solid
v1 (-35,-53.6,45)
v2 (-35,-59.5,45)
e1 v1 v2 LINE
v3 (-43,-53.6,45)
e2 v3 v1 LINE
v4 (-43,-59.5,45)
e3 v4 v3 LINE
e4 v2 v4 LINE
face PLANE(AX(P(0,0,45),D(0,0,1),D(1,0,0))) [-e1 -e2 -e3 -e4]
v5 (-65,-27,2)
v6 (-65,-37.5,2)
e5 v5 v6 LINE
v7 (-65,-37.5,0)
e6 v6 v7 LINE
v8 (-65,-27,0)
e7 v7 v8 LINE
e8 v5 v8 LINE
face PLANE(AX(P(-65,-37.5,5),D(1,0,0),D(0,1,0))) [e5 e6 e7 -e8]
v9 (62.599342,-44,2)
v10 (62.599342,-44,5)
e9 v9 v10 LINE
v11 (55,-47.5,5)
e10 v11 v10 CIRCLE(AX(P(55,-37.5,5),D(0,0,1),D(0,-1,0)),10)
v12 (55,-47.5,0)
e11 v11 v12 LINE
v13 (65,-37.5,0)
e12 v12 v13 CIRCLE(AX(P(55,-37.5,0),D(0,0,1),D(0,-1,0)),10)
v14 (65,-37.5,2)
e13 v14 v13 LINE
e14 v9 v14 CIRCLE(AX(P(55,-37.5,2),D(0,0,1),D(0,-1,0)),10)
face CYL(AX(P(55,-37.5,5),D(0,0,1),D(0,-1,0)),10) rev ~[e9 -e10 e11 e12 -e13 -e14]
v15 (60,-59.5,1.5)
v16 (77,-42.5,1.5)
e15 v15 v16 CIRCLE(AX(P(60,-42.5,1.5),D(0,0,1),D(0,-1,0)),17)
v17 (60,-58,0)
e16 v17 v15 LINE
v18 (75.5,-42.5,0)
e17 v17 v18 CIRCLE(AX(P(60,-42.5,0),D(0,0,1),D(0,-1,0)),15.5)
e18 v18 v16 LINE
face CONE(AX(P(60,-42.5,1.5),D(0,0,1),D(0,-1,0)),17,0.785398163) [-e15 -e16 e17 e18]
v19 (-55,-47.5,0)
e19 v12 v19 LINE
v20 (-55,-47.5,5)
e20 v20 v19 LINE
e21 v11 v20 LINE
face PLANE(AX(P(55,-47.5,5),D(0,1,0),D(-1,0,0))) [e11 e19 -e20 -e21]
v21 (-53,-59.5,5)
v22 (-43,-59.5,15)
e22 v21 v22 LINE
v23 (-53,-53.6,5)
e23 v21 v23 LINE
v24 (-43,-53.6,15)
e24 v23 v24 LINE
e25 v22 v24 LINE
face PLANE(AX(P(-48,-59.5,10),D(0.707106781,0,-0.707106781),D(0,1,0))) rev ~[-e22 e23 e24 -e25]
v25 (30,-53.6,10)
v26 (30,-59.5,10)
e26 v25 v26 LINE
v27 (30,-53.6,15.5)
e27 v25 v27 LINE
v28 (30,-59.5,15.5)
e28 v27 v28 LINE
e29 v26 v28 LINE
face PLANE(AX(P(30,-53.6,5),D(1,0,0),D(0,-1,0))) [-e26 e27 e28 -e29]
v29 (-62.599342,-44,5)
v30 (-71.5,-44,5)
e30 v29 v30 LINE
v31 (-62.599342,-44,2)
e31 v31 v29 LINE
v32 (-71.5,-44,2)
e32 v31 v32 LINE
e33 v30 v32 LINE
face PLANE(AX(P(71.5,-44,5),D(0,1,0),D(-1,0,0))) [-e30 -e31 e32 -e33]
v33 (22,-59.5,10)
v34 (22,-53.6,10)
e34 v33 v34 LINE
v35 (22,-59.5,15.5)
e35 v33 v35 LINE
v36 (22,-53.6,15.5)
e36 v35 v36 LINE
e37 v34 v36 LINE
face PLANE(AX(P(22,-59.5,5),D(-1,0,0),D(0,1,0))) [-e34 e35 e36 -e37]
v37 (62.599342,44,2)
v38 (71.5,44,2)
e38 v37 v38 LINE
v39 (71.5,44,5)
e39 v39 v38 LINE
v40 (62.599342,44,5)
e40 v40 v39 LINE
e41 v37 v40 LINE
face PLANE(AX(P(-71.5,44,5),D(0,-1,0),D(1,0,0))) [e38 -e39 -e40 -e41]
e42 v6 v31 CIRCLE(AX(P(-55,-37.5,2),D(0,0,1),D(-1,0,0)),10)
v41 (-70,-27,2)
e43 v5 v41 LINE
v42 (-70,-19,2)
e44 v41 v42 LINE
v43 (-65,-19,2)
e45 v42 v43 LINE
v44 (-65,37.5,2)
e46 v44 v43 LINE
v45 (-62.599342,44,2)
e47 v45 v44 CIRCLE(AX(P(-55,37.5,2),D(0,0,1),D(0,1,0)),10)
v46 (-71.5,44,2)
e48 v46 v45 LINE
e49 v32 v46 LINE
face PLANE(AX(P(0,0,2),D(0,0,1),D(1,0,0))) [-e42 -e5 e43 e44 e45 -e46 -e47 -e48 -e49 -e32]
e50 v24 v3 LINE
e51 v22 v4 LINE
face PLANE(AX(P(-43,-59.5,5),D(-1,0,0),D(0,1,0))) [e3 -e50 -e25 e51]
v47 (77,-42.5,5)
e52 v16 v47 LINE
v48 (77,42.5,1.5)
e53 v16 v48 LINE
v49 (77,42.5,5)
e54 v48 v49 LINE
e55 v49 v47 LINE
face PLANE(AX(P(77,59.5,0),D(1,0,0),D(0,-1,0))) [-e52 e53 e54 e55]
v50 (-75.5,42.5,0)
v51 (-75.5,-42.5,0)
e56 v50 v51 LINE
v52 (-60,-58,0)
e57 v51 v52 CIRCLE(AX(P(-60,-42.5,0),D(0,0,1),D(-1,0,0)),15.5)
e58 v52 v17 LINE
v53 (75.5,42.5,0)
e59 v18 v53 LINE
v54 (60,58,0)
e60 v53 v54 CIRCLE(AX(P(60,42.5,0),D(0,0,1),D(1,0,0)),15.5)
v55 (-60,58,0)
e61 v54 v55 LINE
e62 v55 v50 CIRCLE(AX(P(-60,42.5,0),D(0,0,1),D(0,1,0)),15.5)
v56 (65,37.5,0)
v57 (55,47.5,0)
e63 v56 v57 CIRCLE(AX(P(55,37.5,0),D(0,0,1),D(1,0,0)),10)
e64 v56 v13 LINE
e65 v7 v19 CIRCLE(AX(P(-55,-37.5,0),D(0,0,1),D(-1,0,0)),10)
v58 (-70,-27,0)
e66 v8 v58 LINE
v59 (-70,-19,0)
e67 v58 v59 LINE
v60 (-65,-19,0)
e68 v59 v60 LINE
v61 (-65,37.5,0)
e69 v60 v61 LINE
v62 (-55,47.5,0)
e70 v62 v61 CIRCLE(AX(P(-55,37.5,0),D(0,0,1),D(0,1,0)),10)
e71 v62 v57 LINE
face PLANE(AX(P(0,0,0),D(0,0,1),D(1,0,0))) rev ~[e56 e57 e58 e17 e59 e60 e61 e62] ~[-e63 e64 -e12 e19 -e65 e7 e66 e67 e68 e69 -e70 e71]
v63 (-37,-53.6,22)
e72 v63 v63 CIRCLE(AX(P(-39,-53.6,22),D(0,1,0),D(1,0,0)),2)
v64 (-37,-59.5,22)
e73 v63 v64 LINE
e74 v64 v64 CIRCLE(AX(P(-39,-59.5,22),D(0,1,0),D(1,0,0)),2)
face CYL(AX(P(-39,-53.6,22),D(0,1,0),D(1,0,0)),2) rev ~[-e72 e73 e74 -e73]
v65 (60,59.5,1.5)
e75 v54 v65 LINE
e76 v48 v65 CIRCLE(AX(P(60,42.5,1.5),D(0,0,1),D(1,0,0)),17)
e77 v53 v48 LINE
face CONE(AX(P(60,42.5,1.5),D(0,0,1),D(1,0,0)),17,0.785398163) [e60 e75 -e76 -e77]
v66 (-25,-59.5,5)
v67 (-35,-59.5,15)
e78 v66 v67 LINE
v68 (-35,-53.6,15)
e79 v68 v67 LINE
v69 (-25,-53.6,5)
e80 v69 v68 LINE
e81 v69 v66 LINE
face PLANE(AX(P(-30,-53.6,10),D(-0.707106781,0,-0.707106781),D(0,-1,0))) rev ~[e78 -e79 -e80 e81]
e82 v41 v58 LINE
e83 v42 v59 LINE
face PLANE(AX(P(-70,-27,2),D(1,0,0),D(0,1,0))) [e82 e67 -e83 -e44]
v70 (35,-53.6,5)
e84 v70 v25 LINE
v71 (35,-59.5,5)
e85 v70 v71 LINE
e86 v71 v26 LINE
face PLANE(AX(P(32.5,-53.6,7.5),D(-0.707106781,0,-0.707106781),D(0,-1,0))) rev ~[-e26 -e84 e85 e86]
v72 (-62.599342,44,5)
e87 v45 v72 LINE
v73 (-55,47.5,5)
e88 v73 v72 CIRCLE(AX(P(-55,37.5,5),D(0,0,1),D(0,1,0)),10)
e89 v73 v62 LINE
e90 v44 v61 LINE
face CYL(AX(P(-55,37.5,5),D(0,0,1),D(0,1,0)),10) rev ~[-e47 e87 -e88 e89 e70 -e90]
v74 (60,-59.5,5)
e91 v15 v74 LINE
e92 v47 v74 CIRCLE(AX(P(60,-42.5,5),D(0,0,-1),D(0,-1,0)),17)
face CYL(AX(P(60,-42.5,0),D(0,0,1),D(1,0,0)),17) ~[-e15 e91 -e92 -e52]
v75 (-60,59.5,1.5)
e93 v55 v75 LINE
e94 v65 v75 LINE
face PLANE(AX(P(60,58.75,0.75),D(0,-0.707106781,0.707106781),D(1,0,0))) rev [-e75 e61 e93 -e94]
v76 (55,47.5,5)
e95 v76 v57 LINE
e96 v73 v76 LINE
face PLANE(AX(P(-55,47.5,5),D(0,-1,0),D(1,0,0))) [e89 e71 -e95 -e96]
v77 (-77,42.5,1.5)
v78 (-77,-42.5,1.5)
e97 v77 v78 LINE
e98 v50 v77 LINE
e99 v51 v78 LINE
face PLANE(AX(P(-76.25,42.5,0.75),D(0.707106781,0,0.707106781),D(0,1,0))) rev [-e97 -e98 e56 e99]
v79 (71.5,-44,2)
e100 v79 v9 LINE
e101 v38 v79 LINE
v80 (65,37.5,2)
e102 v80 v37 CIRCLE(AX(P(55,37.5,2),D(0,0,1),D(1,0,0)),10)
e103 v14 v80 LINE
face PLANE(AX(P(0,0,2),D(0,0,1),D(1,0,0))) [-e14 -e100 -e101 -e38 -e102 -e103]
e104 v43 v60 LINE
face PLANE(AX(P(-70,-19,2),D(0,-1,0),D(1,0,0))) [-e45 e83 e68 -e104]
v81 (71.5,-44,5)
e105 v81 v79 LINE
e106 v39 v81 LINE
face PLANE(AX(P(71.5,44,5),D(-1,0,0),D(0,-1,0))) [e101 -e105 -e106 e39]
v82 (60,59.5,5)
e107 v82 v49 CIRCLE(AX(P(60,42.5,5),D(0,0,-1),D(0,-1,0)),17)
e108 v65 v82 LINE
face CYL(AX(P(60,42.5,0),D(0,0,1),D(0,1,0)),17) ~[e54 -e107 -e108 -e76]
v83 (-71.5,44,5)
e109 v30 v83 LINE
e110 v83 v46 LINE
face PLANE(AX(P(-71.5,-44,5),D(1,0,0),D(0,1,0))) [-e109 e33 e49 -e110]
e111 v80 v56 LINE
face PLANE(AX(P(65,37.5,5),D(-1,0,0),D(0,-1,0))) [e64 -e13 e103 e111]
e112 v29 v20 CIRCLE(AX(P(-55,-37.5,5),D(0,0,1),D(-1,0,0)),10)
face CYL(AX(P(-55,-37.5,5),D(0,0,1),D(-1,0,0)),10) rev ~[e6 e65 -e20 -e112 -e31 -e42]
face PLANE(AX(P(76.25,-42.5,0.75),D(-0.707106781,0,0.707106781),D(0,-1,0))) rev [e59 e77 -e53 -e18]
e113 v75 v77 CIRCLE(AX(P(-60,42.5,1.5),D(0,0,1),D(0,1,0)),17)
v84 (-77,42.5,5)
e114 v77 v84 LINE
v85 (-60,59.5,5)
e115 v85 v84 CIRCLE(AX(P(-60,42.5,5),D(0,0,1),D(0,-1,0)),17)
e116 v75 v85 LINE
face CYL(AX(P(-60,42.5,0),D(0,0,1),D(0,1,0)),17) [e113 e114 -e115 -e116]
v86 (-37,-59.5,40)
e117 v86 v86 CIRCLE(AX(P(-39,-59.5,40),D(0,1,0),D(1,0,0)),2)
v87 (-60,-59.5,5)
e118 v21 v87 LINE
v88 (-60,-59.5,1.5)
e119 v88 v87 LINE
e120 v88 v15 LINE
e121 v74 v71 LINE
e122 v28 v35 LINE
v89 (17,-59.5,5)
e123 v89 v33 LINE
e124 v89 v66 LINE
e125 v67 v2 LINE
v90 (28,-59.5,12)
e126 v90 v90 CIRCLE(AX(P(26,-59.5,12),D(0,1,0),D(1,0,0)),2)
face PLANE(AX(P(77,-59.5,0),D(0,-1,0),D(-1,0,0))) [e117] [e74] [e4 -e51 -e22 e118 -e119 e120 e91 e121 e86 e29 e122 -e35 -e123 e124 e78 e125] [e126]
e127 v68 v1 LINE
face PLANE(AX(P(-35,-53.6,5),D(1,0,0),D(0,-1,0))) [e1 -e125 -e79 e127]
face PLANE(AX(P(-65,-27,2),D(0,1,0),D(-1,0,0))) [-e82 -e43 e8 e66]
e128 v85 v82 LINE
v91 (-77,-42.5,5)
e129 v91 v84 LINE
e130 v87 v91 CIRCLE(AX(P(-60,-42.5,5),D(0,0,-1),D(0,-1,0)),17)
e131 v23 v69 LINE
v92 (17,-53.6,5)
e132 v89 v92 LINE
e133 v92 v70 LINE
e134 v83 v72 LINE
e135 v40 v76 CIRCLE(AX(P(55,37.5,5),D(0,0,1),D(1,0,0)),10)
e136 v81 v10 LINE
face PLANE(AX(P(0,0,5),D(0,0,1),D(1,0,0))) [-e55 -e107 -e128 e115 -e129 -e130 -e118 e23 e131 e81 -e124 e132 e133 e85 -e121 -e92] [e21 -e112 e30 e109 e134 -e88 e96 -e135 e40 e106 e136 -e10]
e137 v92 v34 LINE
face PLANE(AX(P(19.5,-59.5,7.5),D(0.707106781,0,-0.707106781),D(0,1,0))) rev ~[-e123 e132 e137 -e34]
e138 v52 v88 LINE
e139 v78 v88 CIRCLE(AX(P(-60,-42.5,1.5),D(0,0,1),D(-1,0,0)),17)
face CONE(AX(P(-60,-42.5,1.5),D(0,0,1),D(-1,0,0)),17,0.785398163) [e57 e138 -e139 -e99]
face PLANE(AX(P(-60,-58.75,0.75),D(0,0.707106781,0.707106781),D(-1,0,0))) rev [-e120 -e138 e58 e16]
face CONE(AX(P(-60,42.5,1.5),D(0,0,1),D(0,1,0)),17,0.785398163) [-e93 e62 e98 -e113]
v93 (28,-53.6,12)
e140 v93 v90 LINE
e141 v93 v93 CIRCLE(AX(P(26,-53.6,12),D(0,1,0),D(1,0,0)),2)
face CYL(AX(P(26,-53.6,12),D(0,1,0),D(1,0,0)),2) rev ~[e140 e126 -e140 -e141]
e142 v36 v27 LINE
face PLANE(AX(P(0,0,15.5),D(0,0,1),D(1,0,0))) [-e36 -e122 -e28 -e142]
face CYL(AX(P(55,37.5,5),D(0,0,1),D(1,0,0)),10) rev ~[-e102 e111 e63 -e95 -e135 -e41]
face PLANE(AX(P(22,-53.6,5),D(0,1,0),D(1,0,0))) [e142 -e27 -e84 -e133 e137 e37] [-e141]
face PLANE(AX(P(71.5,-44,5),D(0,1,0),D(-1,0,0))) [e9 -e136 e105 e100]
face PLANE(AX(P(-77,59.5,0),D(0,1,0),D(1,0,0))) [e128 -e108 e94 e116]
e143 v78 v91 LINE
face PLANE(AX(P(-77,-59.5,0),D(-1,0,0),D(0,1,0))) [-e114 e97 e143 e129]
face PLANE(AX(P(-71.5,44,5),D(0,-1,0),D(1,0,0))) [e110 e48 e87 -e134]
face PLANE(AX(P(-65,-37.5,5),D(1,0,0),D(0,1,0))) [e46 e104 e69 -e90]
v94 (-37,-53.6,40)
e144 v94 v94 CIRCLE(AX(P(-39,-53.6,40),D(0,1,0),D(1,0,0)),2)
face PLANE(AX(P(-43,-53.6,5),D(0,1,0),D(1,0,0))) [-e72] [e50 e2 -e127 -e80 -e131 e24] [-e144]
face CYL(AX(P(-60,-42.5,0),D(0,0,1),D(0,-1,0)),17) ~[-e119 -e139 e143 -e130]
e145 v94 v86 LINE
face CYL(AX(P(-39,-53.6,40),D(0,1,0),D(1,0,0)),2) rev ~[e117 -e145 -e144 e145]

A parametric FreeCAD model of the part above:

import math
import FreeCAD as App
import Part
import Sketcher

V = App.Vector
Q = App.Units.Quantity


def edges_at(feature, points):
    """Names of the edges that pass closest to the given points."""
    edges = feature.Shape.Edges
    near = lambda p: min(range(len(edges)), key=lambda i: edges[i].distToShape(Part.Vertex(*p))[0])
    return sorted({f"Edge{near(p) + 1}" for p in points})

doc = App.newDocument("Part")
params = doc.addObject("Spreadsheet::Sheet", "Params")
for row, (alias, value) in enumerate([
    ("sketch1_width", "154 mm"),
    ("sketch1_height", "119 mm"),
    ("pad1_length", "5 mm"),
    ("fillet_radius", "17 mm"),
    ("chamfer_size", "1.5 mm"),
    ("sketch2_radius", "10 mm"),
    ("sketch2_width", "110 mm"),
    ("sketch3_width", "143 mm"),
    ("sketch3_height", "88 mm"),
    ("pocket2_length", "3 mm"),
    ("sketch4_width", "8 mm"),
    ("sketch4_height", "5.9 mm"),
    ("pad2_length", "40 mm"),
    ("chamfer2_size", "10 mm"),
    ("sketch5_width", "8 mm"),
    ("sketch5_height", "5.9 mm"),
    ("pad3_length", "10.5 mm"),
    ("chamfer3_size", "5 mm"),
    ("sketch6_width", "5 mm"),
    ("sketch6_height", "8 mm"),
    ("pocket3_length", "3 mm"),
    ("sketch7_diameter", "4 mm"),
], start=1):
    params.set(f"A{row}", alias)
    params.set(f"B{row}", "=" + value)
    params.setAlias(f"B{row}", alias)

body = doc.addObject("PartDesign::Body", "Body")

# Sketch on XY plane
sketch1 = body.newObject("Sketcher::SketchObject", "Sketch")
sketch1.AttachmentSupport = (doc.getObject("XY_Plane"), [""])
sketch1.MapMode = "FlatFace"
sketch1.addGeometry([
    Part.LineSegment(V(77, 60, 0), V(-77, 60, 0)),
    Part.LineSegment(V(-77, 60, 0), V(-77, -60, 0)),
    Part.LineSegment(V(-77, -60, 0), V(77, -60, 0)),
    Part.LineSegment(V(77, -60, 0), V(77, 60, 0)),
], False)
sketch1.addConstraint([
    Sketcher.Constraint("Coincident", 0, 2, 1, 1),
    Sketcher.Constraint("Coincident", 1, 2, 2, 1),
    Sketcher.Constraint("Coincident", 2, 2, 3, 1),
    Sketcher.Constraint("Coincident", 3, 2, 0, 1),
    Sketcher.Constraint("Horizontal", 0),
    Sketcher.Constraint("Vertical", 1),
    Sketcher.Constraint("Horizontal", 2),
    Sketcher.Constraint("Vertical", 3),
    Sketcher.Constraint("Symmetric", 0, 2, 2, 2, -1, 1),
    Sketcher.Constraint("DistanceX", 0, 2, 0, 1, Q("154 mm")),
    Sketcher.Constraint("DistanceY", 1, 2, 1, 1, Q("119 mm")),
])
sketch1.setExpression("Constraints[9]", "Params.sketch1_width")
sketch1.setExpression("Constraints[10]", "Params.sketch1_height")
pad1 = body.newObject("PartDesign::Pad", "Pad")
pad1.Profile = sketch1
pad1.setExpression("Length", "Params.pad1_length")
doc.recompute()

fillet = body.newObject("PartDesign::Fillet", "Fillet")
fillet.Base = (pad1, edges_at(pad1, [
    (77, 59.5, 2.5),
    (77, -59.5, 2.5),
    (-77, -59.5, 2.5),
    (-77, 59.5, 2.5),
]))
fillet.setExpression("Radius", "Params.fillet_radius")
doc.recompute()

chamfer = body.newObject("PartDesign::Chamfer", "Chamfer")
chamfer.Base = (fillet, edges_at(fillet, [
    (-72.021, 54.521, 0),
    (-77, 0, 0),
    (-72.021, -54.521, 0),
    (0, -59.5, 0),
    (72.021, -54.521, 0),
    (77, 0, 0),
    (72.021, 54.521, 0),
    (0, 59.5, 0),
]))
chamfer.setExpression("Size", "Params.chamfer_size")

# Sketch on XY plane
sketch2 = body.newObject("Sketcher::SketchObject", "Sketch001")
sketch2.AttachmentSupport = (doc.getObject("XY_Plane"), [""])
sketch2.MapMode = "FlatFace"
sketch2.AttachmentOffset = App.Placement(V(0, 0, 5), App.Rotation())
sketch2.addGeometry([
    Part.LineSegment(V(55, 48, 0), V(-55, 48, 0)),  # 0
    Part.ArcOfCircle(Part.Circle(V(-55, 38, 0), V(0, 0, 1), 10), math.radians(90), math.radians(180)),  # 1
    Part.LineSegment(V(-65, 38, 0), V(-65, -38, 0)),  # 2
    Part.ArcOfCircle(Part.Circle(V(-55, -38, 0), V(0, 0, 1), 10), math.radians(180), math.radians(270)),  # 3
    Part.LineSegment(V(-55, -48, 0), V(55, -48, 0)),  # 4
    Part.ArcOfCircle(Part.Circle(V(55, -38, 0), V(0, 0, 1), 10), math.radians(-90), math.radians(0)),  # 5
    Part.LineSegment(V(65, -38, 0), V(65, 38, 0)),  # 6
    Part.ArcOfCircle(Part.Circle(V(55, 38, 0), V(0, 0, 1), 10), math.radians(0), math.radians(90)),  # 7
], False)
sketch2.addConstraint([
    Sketcher.Constraint("Tangent", 0, 2, 1, 1),
    Sketcher.Constraint("Tangent", 1, 2, 2, 1),
    Sketcher.Constraint("Tangent", 2, 2, 3, 1),
    Sketcher.Constraint("Tangent", 3, 2, 4, 1),
    Sketcher.Constraint("Tangent", 4, 2, 5, 1),
    Sketcher.Constraint("Tangent", 5, 2, 6, 1),
    Sketcher.Constraint("Tangent", 6, 2, 7, 1),
    Sketcher.Constraint("Tangent", 7, 2, 0, 1),
    Sketcher.Constraint("Horizontal", 0),
    Sketcher.Constraint("Vertical", 2),
    Sketcher.Constraint("Horizontal", 4),
    Sketcher.Constraint("Vertical", 6),
    Sketcher.Constraint("Equal", 1, 3),
    Sketcher.Constraint("Equal", 3, 5),
    Sketcher.Constraint("Equal", 5, 7),
    Sketcher.Constraint("Symmetric", 1, 3, 5, 3, -1, 1),
    Sketcher.Constraint("Radius", 1, Q("10 mm")),
    Sketcher.Constraint("DistanceY", 3, 2, 0, 2, Q("95 mm")),
    Sketcher.Constraint("DistanceX", 0, 2, 0, 1, Q("110 mm")),
])
sketch2.setExpression("Constraints[16]", "Params.sketch2_radius")
sketch2.setExpression("Constraints[18]", "Params.sketch2_width")
pocket1 = body.newObject("PartDesign::Pocket", "Pocket")
pocket1.Profile = sketch2
pocket1.Type = "ThroughAll"

# Sketch on XY plane
sketch3 = body.newObject("Sketcher::SketchObject", "Sketch002")
sketch3.AttachmentSupport = (doc.getObject("XY_Plane"), [""])
sketch3.MapMode = "FlatFace"
sketch3.AttachmentOffset = App.Placement(V(0, 0, 5), App.Rotation())
sketch3.addGeometry([
    Part.LineSegment(V(72, 44, 0), V(-72, 44, 0)),
    Part.LineSegment(V(-72, 44, 0), V(-72, -44, 0)),
    Part.LineSegment(V(-72, -44, 0), V(72, -44, 0)),
    Part.LineSegment(V(72, -44, 0), V(72, 44, 0)),
], False)
sketch3.addConstraint([
    Sketcher.Constraint("Coincident", 0, 2, 1, 1),
    Sketcher.Constraint("Coincident", 1, 2, 2, 1),
    Sketcher.Constraint("Coincident", 2, 2, 3, 1),
    Sketcher.Constraint("Coincident", 3, 2, 0, 1),
    Sketcher.Constraint("Horizontal", 0),
    Sketcher.Constraint("Vertical", 1),
    Sketcher.Constraint("Horizontal", 2),
    Sketcher.Constraint("Vertical", 3),
    Sketcher.Constraint("Symmetric", 0, 2, 2, 2, -1, 1),
    Sketcher.Constraint("DistanceX", 0, 2, 0, 1, Q("143 mm")),
    Sketcher.Constraint("DistanceY", 1, 2, 1, 1, Q("88 mm")),
])
sketch3.setExpression("Constraints[9]", "Params.sketch3_width")
sketch3.setExpression("Constraints[10]", "Params.sketch3_height")
pocket2 = body.newObject("PartDesign::Pocket", "Pocket001")
pocket2.Profile = sketch3
pocket2.setExpression("Length", "Params.pocket2_length")

# Sketch on XY plane
sketch4 = body.newObject("Sketcher::SketchObject", "Sketch003")
sketch4.AttachmentSupport = (doc.getObject("XY_Plane"), [""])
sketch4.MapMode = "FlatFace"
sketch4.AttachmentOffset = App.Placement(V(0, 0, 5), App.Rotation())
sketch4.addGeometry([
    Part.LineSegment(V(-43, -60, 0), V(-35, -60, 0)),
    Part.LineSegment(V(-35, -60, 0), V(-35, -54, 0)),
    Part.LineSegment(V(-35, -54, 0), V(-43, -54, 0)),
    Part.LineSegment(V(-43, -54, 0), V(-43, -60, 0)),
], False)
sketch4.addConstraint([
    Sketcher.Constraint("Coincident", 0, 2, 1, 1),
    Sketcher.Constraint("Coincident", 1, 2, 2, 1),
    Sketcher.Constraint("Coincident", 2, 2, 3, 1),
    Sketcher.Constraint("Coincident", 3, 2, 0, 1),
    Sketcher.Constraint("Horizontal", 0),
    Sketcher.Constraint("Vertical", 1),
    Sketcher.Constraint("Horizontal", 2),
    Sketcher.Constraint("Vertical", 3),
    Sketcher.Constraint("DistanceX", 0, 1, 0, 2, Q("8 mm")),
    Sketcher.Constraint("DistanceY", 1, 1, 1, 2, Q("5.9 mm")),
    Sketcher.Constraint("DistanceX", 0, 2, -1, 1, Q("35 mm")),
    Sketcher.Constraint("DistanceY", 0, 2, -1, 1, Q("59.5 mm")),
])
sketch4.setExpression("Constraints[8]", "Params.sketch4_width")
sketch4.setExpression("Constraints[9]", "Params.sketch4_height")
pad2 = body.newObject("PartDesign::Pad", "Pad001")
pad2.Profile = sketch4
pad2.setExpression("Length", "Params.pad2_length")
doc.recompute()

chamfer2 = body.newObject("PartDesign::Chamfer", "Chamfer001")
chamfer2.Base = (pad2, edges_at(pad2, [(-43, -56.55, 5), (-35, -56.55, 5)]))
chamfer2.setExpression("Size", "Params.chamfer2_size")

# Sketch on XY plane
sketch5 = body.newObject("Sketcher::SketchObject", "Sketch004")
sketch5.AttachmentSupport = (doc.getObject("XY_Plane"), [""])
sketch5.MapMode = "FlatFace"
sketch5.AttachmentOffset = App.Placement(V(0, 0, 5), App.Rotation())
sketch5.addGeometry([
    Part.LineSegment(V(30, -54, 0), V(22, -54, 0)),
    Part.LineSegment(V(22, -54, 0), V(22, -60, 0)),
    Part.LineSegment(V(22, -60, 0), V(30, -60, 0)),
    Part.LineSegment(V(30, -60, 0), V(30, -54, 0)),
], False)
sketch5.addConstraint([
    Sketcher.Constraint("Coincident", 0, 2, 1, 1),
    Sketcher.Constraint("Coincident", 1, 2, 2, 1),
    Sketcher.Constraint("Coincident", 2, 2, 3, 1),
    Sketcher.Constraint("Coincident", 3, 2, 0, 1),
    Sketcher.Constraint("Horizontal", 0),
    Sketcher.Constraint("Vertical", 1),
    Sketcher.Constraint("Horizontal", 2),
    Sketcher.Constraint("Vertical", 3),
    Sketcher.Constraint("DistanceX", 0, 2, 0, 1, Q("8 mm")),
    Sketcher.Constraint("DistanceY", 1, 2, 1, 1, Q("5.9 mm")),
    Sketcher.Constraint("DistanceX", -1, 1, 0, 2, Q("22 mm")),
    Sketcher.Constraint("DistanceY", 0, 2, -1, 1, Q("53.6 mm")),
])
sketch5.setExpression("Constraints[8]", "Params.sketch5_width")
sketch5.setExpression("Constraints[9]", "Params.sketch5_height")
pad3 = body.newObject("PartDesign::Pad", "Pad002")
pad3.Profile = sketch5
pad3.setExpression("Length", "Params.pad3_length")
doc.recompute()

chamfer3 = body.newObject("PartDesign::Chamfer", "Chamfer002")
chamfer3.Base = (pad3, edges_at(pad3, [(22, -56.55, 5), (30, -56.55, 5)]))
chamfer3.setExpression("Size", "Params.chamfer3_size")

# Sketch on XY plane
sketch6 = body.newObject("Sketcher::SketchObject", "Sketch005")
sketch6.AttachmentSupport = (doc.getObject("XY_Plane"), [""])
sketch6.MapMode = "FlatFace"
sketch6.AttachmentOffset = App.Placement(V(0, 0, 2), App.Rotation())
sketch6.addGeometry([
    Part.LineSegment(V(-70, -27, 0), V(-65, -27, 0)),
    Part.LineSegment(V(-65, -27, 0), V(-65, -19, 0)),
    Part.LineSegment(V(-65, -19, 0), V(-70, -19, 0)),
    Part.LineSegment(V(-70, -19, 0), V(-70, -27, 0)),
], False)
sketch6.addConstraint([
    Sketcher.Constraint("Coincident", 0, 2, 1, 1),
    Sketcher.Constraint("Coincident", 1, 2, 2, 1),
    Sketcher.Constraint("Coincident", 2, 2, 3, 1),
    Sketcher.Constraint("Coincident", 3, 2, 0, 1),
    Sketcher.Constraint("Horizontal", 0),
    Sketcher.Constraint("Vertical", 1),
    Sketcher.Constraint("Horizontal", 2),
    Sketcher.Constraint("Vertical", 3),
    Sketcher.Constraint("DistanceX", 0, 1, 0, 2, Q("5 mm")),
    Sketcher.Constraint("DistanceY", 1, 1, 1, 2, Q("8 mm")),
    Sketcher.Constraint("DistanceX", 0, 2, -1, 1, Q("65 mm")),
    Sketcher.Constraint("DistanceY", 0, 2, -1, 1, Q("27 mm")),
])
sketch6.setExpression("Constraints[8]", "Params.sketch6_width")
sketch6.setExpression("Constraints[9]", "Params.sketch6_height")
pocket3 = body.newObject("PartDesign::Pocket", "Pocket002")
pocket3.Profile = sketch6
pocket3.setExpression("Length", "Params.pocket3_length")

# Sketch on XZ plane
sketch7 = body.newObject("Sketcher::SketchObject", "Sketch006")
sketch7.AttachmentSupport = (doc.getObject("XZ_Plane"), [""])
sketch7.MapMode = "FlatFace"
sketch7.AttachmentOffset = App.Placement(V(0, 0, 53.6), App.Rotation())
sketch7.addGeometry([
    Part.Circle(V(-39, 40, 0), V(0, 0, 1), 2),
    Part.Circle(V(-39, 22, 0), V(0, 0, 1), 2),
    Part.Circle(V(26, 12, 0), V(0, 0, 1), 2),
], False)
sketch7.addConstraint([
    Sketcher.Constraint("Equal", 0, 1),
    Sketcher.Constraint("Equal", 1, 2),
    Sketcher.Constraint("Vertical", 0, 3, 1, 3),
    Sketcher.Constraint("Diameter", 0, Q("4 mm")),
    Sketcher.Constraint("DistanceY", 1, 3, 0, 3, Q("18 mm")),
    Sketcher.Constraint("DistanceX", 0, 3, -1, 1, Q("39 mm")),
    Sketcher.Constraint("DistanceY", -1, 1, 0, 3, Q("40 mm")),
    Sketcher.Constraint("DistanceX", -1, 1, 2, 3, Q("26 mm")),
    Sketcher.Constraint("DistanceY", -1, 1, 2, 3, Q("12 mm")),
])
sketch7.setExpression("Constraints[3]", "Params.sketch7_diameter")
pocket4 = body.newObject("PartDesign::Pocket", "Pocket003")
pocket4.Profile = sketch7
pocket4.Type = "ThroughAll"
pocket4.Reversed = True

doc.recompute()
